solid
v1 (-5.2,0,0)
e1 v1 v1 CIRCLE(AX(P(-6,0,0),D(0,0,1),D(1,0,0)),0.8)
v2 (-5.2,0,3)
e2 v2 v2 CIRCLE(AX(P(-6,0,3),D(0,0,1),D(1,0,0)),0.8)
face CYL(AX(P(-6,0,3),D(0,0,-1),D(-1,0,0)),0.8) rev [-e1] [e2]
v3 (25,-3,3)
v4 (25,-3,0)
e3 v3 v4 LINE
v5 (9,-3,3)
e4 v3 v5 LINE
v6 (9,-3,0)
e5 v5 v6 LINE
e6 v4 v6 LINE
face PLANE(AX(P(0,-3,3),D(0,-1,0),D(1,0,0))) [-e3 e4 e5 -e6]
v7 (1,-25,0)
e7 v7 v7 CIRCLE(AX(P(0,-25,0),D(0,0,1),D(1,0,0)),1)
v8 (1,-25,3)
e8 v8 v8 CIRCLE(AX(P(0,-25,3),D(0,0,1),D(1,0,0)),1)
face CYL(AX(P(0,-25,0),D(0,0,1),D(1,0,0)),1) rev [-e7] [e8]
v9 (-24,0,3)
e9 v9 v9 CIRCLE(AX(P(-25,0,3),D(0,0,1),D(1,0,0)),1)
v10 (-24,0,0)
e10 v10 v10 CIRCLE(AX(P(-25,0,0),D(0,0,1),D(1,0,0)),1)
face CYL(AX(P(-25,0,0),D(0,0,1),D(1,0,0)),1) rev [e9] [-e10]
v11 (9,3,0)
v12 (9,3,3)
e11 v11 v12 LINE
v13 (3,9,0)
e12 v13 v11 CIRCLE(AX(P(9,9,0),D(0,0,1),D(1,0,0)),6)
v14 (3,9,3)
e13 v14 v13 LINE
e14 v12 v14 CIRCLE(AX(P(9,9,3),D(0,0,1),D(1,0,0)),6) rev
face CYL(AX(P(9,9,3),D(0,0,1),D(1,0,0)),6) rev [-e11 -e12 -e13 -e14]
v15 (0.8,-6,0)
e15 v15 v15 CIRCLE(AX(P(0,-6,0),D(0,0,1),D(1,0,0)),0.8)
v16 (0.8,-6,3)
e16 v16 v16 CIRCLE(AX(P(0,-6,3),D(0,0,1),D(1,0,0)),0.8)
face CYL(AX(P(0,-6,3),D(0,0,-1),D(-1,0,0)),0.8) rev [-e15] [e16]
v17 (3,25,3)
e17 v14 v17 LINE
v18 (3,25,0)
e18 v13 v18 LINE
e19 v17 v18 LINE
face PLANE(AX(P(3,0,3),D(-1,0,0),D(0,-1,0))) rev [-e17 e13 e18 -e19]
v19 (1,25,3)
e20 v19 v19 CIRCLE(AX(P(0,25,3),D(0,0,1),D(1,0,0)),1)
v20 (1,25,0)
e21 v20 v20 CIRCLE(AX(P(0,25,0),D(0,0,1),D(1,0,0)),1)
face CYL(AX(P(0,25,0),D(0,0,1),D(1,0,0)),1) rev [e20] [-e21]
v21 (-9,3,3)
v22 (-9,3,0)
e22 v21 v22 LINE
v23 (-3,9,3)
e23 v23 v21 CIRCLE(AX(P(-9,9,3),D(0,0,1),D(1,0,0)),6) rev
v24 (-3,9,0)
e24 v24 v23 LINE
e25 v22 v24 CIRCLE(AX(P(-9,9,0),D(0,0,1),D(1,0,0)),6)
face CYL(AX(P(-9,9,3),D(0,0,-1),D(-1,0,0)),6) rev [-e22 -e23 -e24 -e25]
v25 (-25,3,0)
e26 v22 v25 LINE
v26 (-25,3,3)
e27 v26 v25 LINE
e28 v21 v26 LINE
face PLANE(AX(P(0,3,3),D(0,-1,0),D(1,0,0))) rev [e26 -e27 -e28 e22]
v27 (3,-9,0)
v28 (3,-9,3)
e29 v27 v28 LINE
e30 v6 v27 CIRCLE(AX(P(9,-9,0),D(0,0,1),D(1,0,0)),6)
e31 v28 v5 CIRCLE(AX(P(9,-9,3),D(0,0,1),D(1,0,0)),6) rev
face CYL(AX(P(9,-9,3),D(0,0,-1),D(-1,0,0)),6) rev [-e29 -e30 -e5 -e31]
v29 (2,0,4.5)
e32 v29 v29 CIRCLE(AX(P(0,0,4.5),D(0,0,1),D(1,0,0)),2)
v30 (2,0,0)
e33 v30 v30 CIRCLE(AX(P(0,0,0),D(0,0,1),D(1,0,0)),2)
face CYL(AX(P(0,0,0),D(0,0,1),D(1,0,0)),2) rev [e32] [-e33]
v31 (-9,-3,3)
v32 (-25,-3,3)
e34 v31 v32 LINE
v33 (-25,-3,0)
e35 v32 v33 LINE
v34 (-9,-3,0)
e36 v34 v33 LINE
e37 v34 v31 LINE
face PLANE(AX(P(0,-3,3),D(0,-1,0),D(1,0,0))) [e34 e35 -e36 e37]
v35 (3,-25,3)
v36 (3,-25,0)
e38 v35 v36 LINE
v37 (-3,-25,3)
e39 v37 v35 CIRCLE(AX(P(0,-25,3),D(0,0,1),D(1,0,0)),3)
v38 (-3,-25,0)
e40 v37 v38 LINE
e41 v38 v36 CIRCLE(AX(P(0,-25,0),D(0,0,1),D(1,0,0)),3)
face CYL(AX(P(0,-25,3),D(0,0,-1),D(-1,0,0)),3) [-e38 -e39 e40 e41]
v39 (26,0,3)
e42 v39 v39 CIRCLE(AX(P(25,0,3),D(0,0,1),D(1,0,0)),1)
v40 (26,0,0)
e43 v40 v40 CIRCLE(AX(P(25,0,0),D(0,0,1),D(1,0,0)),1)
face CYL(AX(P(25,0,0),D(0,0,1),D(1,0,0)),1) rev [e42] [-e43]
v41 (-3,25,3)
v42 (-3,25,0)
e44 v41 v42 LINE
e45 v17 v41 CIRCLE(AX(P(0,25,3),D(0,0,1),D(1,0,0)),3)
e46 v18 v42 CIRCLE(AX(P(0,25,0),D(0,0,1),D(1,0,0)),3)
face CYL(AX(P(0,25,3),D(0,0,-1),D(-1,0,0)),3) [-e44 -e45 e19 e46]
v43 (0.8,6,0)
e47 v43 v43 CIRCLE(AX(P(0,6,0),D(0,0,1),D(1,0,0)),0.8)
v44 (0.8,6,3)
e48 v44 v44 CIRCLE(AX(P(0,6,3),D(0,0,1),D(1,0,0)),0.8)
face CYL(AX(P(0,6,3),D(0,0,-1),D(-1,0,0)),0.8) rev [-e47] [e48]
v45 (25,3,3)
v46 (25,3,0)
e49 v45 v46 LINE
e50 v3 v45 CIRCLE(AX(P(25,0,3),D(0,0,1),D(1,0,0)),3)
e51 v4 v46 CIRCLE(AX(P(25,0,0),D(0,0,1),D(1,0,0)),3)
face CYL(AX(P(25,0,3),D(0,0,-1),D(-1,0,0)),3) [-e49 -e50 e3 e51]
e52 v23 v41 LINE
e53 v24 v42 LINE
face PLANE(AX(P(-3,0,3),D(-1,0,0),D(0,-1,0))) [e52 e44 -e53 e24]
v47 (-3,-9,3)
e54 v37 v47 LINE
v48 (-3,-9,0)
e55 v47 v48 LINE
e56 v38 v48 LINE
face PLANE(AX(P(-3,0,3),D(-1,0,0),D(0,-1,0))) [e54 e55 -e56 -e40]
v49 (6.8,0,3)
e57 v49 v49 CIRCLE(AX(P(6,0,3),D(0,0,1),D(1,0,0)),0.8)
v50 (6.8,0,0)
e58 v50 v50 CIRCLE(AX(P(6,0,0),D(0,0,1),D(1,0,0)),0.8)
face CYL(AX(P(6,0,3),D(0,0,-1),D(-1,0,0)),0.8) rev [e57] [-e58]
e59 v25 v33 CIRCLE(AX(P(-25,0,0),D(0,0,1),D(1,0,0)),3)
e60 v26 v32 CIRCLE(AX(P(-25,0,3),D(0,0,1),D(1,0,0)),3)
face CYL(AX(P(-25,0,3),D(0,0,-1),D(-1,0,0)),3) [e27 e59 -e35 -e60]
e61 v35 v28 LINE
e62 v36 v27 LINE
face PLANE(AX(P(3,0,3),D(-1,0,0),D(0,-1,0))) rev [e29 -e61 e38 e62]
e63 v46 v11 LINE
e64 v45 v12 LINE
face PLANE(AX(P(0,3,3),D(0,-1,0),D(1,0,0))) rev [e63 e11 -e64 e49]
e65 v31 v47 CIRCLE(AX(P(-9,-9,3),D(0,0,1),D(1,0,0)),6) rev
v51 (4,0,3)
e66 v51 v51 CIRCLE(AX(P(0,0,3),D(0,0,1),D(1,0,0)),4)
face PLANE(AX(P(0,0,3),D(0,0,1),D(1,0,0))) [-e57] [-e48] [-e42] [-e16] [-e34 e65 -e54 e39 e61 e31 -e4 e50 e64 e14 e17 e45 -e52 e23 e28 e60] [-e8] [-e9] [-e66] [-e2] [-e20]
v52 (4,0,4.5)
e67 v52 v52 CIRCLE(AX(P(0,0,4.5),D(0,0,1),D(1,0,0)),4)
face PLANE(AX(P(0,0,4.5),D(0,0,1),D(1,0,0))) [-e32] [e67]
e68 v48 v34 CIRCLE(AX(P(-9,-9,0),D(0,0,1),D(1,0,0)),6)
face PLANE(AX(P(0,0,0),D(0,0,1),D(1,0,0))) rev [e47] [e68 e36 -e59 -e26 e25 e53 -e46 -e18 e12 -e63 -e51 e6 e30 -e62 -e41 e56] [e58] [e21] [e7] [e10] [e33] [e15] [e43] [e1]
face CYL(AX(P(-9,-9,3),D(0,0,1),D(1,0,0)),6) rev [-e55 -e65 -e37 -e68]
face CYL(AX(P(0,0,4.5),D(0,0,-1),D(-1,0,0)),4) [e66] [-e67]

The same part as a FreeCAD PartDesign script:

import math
import FreeCAD as App
import Part
import Sketcher


def edges_at(feature, points):
    """Names of the edges that pass closest to the given points."""
    edges = feature.Shape.Edges
    near = lambda p: min(range(len(edges)), key=lambda i: edges[i].distToShape(Part.Vertex(*p))[0])
    return sorted({f"Edge{near(p) + 1}" for p in points})

doc = App.newDocument("Part")
body = doc.addObject("PartDesign::Body", "Body")

# Sketch on XY plane
sketch1 = doc.addObject("Sketcher::SketchObject", "Sketch")
body.addObject(sketch1)
sketch1.AttachmentSupport = (doc.XY_Plane, [""])
sketch1.MapMode = "FlatFace"
sketch1.addGeometry([
    Part.ArcOfCircle(Part.Circle(App.Vector(25, 0, 0), App.Vector(0, 0, 1), 3), math.radians(-90), math.radians(90)),  # 0
    Part.LineSegment(App.Vector(25, 3, 0), App.Vector(3, 3, 0)),  # 1
    Part.LineSegment(App.Vector(3, 3, 0), App.Vector(3, 25, 0)),  # 2
    Part.ArcOfCircle(Part.Circle(App.Vector(0, 25, 0), App.Vector(0, 0, 1), 3), math.radians(0), math.radians(180)),  # 3
    Part.LineSegment(App.Vector(-3, 25, 0), App.Vector(-3, 3, 0)),  # 4
    Part.LineSegment(App.Vector(-3, 3, 0), App.Vector(-25, 3, 0)),  # 5
    Part.ArcOfCircle(Part.Circle(App.Vector(-25, 0, 0), App.Vector(0, 0, 1), 3), math.radians(90), math.radians(270)),  # 6
    Part.LineSegment(App.Vector(-25, -3, 0), App.Vector(-3, -3, 0)),  # 7
    Part.LineSegment(App.Vector(-3, -3, 0), App.Vector(-3, -25, 0)),  # 8
    Part.ArcOfCircle(Part.Circle(App.Vector(0, -25, 0), App.Vector(0, 0, 1), 3), math.radians(180), math.radians(360)),  # 9
    Part.LineSegment(App.Vector(3, -25, 0), App.Vector(3, -3, 0)),  # 10
    Part.LineSegment(App.Vector(3, -3, 0), App.Vector(25, -3, 0)),  # 11
    Part.Circle(App.Vector(6, 0, 0), App.Vector(0, 0, 1), 0.8),  # 12
    Part.Circle(App.Vector(0, -6, 0), App.Vector(0, 0, 1), 0.8),  # 13
    Part.Circle(App.Vector(0, 6, 0), App.Vector(0, 0, 1), 0.8),  # 14
    Part.Circle(App.Vector(-6, 0, 0), App.Vector(0, 0, 1), 0.8),  # 15
], False)
sketch1.addConstraint([
    Sketcher.Constraint("Tangent", 0, 2, 1, 1),
    Sketcher.Constraint("Coincident", 1, 2, 2, 1),
    Sketcher.Constraint("Tangent", 2, 2, 3, 1),
    Sketcher.Constraint("Tangent", 3, 2, 4, 1),
    Sketcher.Constraint("Coincident", 4, 2, 5, 1),
    Sketcher.Constraint("Tangent", 5, 2, 6, 1),
    Sketcher.Constraint("Tangent", 6, 2, 7, 1),
    Sketcher.Constraint("Coincident", 7, 2, 8, 1),
    Sketcher.Constraint("Tangent", 8, 2, 9, 1),
    Sketcher.Constraint("Tangent", 9, 2, 10, 1),
    Sketcher.Constraint("Coincident", 10, 2, 11, 1),
    Sketcher.Constraint("Tangent", 11, 2, 0, 1),
    Sketcher.Constraint("Horizontal", 1),
    Sketcher.Constraint("Vertical", 2),
    Sketcher.Constraint("Vertical", 4),
    Sketcher.Constraint("Horizontal", 5),
    Sketcher.Constraint("Horizontal", 7),
    Sketcher.Constraint("Vertical", 8),
    Sketcher.Constraint("Vertical", 10),
    Sketcher.Constraint("Horizontal", 11),
    Sketcher.Constraint("Equal", 0, 3),
    Sketcher.Constraint("Equal", 3, 6),
    Sketcher.Constraint("Equal", 6, 9),
    Sketcher.Constraint("Equal", 12, 13),
    Sketcher.Constraint("Equal", 13, 14),
    Sketcher.Constraint("Equal", 14, 15),
    Sketcher.Constraint("Symmetric", 0, 3, 6, 3, -1, 1),
    Sketcher.Constraint("Symmetric", 3, 3, 9, 3, -1, 1),
    Sketcher.Constraint("Symmetric", 13, 3, 14, 3, -1, 1),
    Sketcher.Constraint("Symmetric", 12, 3, 15, 3, -1, 1),
    Sketcher.Constraint("Symmetric", 1, 2, 4, 2, -2),
    Sketcher.Constraint("PointOnObject", 12, 3, -1),
    Sketcher.Constraint("PointOnObject", 13, 3, -2),
    Sketcher.Constraint("Equal", 11, 2),
    Sketcher.Constraint("Radius", 0, 3.0),
    Sketcher.Constraint("Diameter", 12, 1.6),
    Sketcher.Constraint("DistanceX", 1, 2, 1, 1, 22.0),
    Sketcher.Constraint("DistanceX", -1, 1, 12, 3, 6.0),
    Sketcher.Constraint("DistanceY", 13, 3, -1, 1, 6.0),
])
pad1 = doc.addObject("PartDesign::Pad", "Pad")
body.addObject(pad1)
pad1.Profile = sketch1
pad1.Length = 3
doc.recompute()

fillet = doc.addObject("PartDesign::Fillet", "Fillet")
body.addObject(fillet)
fillet.Base = (pad1, edges_at(pad1, [
    (3, -3, 1.5),
    (-3, -3, 1.5),
    (-3, 3, 1.5),
    (3, 3, 1.5),
]))
fillet.Radius = 6

# Sketch on XY plane
sketch2 = doc.addObject("Sketcher::SketchObject", "Sketch001")
body.addObject(sketch2)
sketch2.AttachmentSupport = (doc.XY_Plane, [""])
sketch2.MapMode = "FlatFace"
sketch2.AttachmentOffset = App.Placement(App.Vector(0, 0, 3), App.Rotation())
sketch2.addGeometry(Part.Circle(App.Vector(0, 0, 0), App.Vector(0, 0, 1), 2), False)
sketch2.addConstraint([
    Sketcher.Constraint("Coincident", 0, 3, -1, 1),
    Sketcher.Constraint("Diameter", 0, 4.0),
])
pocket1 = doc.addObject("PartDesign::Pocket", "Pocket")
body.addObject(pocket1)
pocket1.Profile = sketch2
pocket1.Length = 3

# Sketch on XY plane
sketch3 = doc.addObject("Sketcher::SketchObject", "Sketch002")
body.addObject(sketch3)
sketch3.AttachmentSupport = (doc.XY_Plane, [""])
sketch3.MapMode = "FlatFace"
sketch3.AttachmentOffset = App.Placement(App.Vector(0, 0, 4.5), App.Rotation())
sketch3.addGeometry([
    Part.Circle(App.Vector(0, 0, 0), App.Vector(0, 0, 1), 4),
    Part.Circle(App.Vector(0, 0, 0), App.Vector(0, 0, 1), 2),
], False)
sketch3.addConstraint([
    Sketcher.Constraint("Coincident", 0, 3, -1, 1),
    Sketcher.Constraint("Coincident", 1, 3, -1, 1),
    Sketcher.Constraint("Diameter", 0, 8.0),
    Sketcher.Constraint("Diameter", 1, 4.0),
])
pad2 = doc.addObject("PartDesign::Pad", "Pad001")
body.addObject(pad2)
pad2.Profile = sketch3
pad2.Length = 1.5
pad2.Reversed = True

# Sketch on XY plane
sketch4 = doc.addObject("Sketcher::SketchObject", "Sketch003")
body.addObject(sketch4)
sketch4.AttachmentSupport = (doc.XY_Plane, [""])
sketch4.MapMode = "FlatFace"
sketch4.AttachmentOffset = App.Placement(App.Vector(0, 0, 3), App.Rotation())
sketch4.addGeometry([
    Part.Circle(App.Vector(0, 25, 0), App.Vector(0, 0, 1), 1),
    Part.Circle(App.Vector(25, 0, 0), App.Vector(0, 0, 1), 1),
    Part.Circle(App.Vector(0, -25, 0), App.Vector(0, 0, 1), 1),
    Part.Circle(App.Vector(-25, 0, 0), App.Vector(0, 0, 1), 1),
], False)
sketch4.addConstraint([
    Sketcher.Constraint("Equal", 0, 1),
    Sketcher.Constraint("Equal", 1, 2),
    Sketcher.Constraint("Equal", 2, 3),
    Sketcher.Constraint("Symmetric", 0, 3, 2, 3, -1, 1),
    Sketcher.Constraint("Symmetric", 1, 3, 3, 3, -1, 1),
    Sketcher.Constraint("PointOnObject", 0, 3, -2),
    Sketcher.Constraint("PointOnObject", 1, 3, -1),
    Sketcher.Constraint("Diameter", 0, 2.0),
    Sketcher.Constraint("DistanceY", -1, 1, 0, 3, 25.0),
    Sketcher.Constraint("DistanceX", -1, 1, 1, 3, 25.0),
])
pocket2 = doc.addObject("PartDesign::Pocket", "Pocket001")
body.addObject(pocket2)
pocket2.Profile = sketch4
pocket2.Length = 3

doc.recompute()
